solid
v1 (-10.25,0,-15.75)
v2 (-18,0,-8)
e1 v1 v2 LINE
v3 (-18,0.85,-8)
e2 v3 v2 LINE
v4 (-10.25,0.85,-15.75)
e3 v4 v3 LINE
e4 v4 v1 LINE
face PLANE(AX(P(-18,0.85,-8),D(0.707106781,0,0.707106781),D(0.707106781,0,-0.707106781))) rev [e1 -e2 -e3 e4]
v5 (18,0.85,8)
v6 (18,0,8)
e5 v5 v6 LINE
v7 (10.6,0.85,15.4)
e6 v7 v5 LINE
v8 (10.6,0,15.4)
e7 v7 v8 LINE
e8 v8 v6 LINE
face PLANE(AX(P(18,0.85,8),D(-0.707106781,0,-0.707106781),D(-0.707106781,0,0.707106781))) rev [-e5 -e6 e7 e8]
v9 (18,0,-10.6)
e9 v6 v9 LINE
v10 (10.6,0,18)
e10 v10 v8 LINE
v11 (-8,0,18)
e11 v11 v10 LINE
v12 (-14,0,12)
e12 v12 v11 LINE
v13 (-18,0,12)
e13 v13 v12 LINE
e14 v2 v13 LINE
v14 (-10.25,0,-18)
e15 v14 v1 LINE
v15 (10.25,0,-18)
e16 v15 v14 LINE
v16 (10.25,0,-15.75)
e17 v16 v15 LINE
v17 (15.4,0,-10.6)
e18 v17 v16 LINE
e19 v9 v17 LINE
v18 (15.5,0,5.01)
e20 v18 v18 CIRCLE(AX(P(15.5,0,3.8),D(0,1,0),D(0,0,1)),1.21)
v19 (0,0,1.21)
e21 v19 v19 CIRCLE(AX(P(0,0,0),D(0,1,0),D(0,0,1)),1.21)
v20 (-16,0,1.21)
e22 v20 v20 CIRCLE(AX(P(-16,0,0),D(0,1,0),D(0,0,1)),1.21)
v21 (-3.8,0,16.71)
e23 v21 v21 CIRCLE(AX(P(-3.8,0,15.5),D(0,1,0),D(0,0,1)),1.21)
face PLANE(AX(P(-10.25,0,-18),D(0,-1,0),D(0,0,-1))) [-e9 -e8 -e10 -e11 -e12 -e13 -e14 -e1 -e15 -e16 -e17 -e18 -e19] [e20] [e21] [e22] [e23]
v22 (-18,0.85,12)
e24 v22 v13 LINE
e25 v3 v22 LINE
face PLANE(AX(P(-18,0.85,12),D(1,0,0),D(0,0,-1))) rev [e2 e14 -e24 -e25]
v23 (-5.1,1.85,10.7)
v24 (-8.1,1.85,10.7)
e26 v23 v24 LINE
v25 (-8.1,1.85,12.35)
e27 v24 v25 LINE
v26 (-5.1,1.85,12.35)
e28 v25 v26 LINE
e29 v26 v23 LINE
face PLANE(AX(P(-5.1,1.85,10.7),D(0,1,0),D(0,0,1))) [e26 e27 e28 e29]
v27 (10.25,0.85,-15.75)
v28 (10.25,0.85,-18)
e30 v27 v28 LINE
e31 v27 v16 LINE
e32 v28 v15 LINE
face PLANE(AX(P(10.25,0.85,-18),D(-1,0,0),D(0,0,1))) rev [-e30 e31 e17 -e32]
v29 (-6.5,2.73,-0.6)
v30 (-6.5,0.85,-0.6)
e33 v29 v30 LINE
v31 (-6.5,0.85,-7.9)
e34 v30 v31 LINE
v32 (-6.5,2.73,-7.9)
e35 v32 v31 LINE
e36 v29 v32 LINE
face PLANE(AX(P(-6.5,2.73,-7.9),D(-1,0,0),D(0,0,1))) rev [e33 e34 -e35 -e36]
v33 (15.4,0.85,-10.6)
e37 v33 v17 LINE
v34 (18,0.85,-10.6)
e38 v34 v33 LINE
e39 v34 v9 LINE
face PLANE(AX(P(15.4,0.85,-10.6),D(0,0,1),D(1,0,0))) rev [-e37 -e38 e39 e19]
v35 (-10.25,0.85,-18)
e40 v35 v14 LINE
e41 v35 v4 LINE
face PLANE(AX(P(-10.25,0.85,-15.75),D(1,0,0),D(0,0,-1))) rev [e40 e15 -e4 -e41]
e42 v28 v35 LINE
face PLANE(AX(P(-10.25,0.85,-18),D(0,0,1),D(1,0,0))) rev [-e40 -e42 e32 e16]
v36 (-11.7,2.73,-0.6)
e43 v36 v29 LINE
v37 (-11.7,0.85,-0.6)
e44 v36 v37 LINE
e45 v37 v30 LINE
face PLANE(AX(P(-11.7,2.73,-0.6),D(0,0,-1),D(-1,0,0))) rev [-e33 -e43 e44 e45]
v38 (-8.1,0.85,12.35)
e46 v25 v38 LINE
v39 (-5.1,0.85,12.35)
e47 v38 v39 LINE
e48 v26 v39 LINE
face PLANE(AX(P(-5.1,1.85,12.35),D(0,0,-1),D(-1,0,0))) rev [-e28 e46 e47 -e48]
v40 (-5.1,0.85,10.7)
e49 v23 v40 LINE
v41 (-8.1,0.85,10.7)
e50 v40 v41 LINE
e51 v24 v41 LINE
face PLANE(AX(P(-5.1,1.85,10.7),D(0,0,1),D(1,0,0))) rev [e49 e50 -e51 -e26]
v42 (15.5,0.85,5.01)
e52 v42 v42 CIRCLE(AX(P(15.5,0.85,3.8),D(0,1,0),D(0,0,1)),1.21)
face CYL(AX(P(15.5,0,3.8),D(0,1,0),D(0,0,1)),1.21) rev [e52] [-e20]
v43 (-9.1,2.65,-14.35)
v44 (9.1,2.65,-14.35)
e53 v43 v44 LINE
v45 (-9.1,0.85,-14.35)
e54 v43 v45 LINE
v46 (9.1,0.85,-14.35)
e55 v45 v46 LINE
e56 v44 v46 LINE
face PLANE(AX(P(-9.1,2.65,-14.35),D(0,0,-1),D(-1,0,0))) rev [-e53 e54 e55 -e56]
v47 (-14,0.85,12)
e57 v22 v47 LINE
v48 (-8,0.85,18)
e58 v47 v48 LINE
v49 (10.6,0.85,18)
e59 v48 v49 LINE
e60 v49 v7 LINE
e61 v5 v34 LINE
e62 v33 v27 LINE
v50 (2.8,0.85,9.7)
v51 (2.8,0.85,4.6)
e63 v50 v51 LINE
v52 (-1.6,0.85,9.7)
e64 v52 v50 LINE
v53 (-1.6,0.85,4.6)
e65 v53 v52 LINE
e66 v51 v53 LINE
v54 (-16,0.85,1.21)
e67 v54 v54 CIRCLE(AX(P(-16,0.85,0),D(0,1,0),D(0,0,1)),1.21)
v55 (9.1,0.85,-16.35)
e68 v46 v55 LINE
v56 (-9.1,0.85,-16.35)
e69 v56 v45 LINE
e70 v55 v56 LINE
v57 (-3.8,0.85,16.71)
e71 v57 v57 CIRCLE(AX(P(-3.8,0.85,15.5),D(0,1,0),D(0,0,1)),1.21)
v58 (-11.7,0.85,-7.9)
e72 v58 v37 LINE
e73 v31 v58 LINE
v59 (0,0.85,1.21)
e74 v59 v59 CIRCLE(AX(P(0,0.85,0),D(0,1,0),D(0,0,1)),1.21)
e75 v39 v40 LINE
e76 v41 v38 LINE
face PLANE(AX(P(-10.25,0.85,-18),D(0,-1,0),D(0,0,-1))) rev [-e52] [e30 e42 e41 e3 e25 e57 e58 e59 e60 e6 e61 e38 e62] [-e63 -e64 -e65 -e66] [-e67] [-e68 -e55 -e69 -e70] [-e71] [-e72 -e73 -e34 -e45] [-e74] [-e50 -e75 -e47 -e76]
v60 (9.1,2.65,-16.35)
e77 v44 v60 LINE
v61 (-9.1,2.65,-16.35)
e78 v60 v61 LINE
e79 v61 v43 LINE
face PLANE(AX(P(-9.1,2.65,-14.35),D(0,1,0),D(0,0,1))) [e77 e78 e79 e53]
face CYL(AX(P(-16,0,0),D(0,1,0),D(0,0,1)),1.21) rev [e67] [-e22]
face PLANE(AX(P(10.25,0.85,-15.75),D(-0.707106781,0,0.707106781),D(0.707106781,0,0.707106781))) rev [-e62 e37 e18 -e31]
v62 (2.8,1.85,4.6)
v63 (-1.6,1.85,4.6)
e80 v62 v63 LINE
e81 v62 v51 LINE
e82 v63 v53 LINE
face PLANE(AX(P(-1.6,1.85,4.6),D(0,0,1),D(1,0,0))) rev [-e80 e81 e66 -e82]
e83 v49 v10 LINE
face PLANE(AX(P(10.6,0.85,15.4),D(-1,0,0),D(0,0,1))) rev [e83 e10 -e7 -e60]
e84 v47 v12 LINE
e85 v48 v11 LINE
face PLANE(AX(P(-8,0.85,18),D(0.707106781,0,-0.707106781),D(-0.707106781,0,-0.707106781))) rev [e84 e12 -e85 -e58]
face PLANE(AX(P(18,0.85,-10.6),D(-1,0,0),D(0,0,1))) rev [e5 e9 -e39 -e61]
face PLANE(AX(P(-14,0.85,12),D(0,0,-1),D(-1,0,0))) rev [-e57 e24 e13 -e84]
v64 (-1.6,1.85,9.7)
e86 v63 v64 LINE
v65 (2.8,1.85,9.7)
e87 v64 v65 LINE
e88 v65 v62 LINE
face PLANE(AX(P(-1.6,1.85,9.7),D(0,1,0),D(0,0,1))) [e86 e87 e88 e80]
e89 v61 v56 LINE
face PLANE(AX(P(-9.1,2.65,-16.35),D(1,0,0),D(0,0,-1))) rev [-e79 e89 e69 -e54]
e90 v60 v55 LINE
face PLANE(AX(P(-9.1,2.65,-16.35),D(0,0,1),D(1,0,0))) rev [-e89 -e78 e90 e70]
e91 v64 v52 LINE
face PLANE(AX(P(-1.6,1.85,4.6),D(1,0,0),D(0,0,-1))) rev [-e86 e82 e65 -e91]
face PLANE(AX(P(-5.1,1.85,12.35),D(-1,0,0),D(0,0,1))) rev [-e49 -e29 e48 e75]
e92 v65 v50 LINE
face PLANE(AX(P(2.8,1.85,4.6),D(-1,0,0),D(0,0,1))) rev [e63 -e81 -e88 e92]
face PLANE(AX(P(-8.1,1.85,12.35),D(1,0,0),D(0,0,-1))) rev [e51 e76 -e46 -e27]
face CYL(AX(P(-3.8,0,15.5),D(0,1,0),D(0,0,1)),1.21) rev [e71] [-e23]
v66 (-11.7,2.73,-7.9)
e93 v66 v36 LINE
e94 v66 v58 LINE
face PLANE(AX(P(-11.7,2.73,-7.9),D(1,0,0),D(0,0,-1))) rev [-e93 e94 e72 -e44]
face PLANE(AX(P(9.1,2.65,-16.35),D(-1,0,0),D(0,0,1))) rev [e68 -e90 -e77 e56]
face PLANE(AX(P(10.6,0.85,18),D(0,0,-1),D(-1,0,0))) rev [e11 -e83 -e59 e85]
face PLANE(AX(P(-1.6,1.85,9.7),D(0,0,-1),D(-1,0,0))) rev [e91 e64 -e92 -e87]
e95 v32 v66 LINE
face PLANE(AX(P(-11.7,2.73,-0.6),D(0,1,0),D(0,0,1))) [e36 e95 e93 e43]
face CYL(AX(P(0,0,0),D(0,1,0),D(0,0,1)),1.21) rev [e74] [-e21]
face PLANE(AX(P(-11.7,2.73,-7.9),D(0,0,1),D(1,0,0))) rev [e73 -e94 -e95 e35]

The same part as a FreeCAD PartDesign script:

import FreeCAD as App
import Part
import Sketcher
Q = App.Units.Quantity

doc = App.newDocument("Part")
body = doc.addObject("PartDesign::Body", "Body")

# Sketch on XZ plane
sketch1 = body.newObject("Sketcher::SketchObject", "Sketch")
sketch1.AttachmentSupport = (doc.getObject("XZ_Plane"), [""])
sketch1.MapMode = "FlatFace"
sketch1.addGeometry([
    Part.LineSegment(App.Vector(10.2, -18, 0), App.Vector(-10.2, -18, 0)),  # 0
    Part.LineSegment(App.Vector(-10.2, -18, 0), App.Vector(-10.2, -15.8, 0)),  # 1
    Part.LineSegment(App.Vector(-10.2, -15.8, 0), App.Vector(-18, -8, 0)),  # 2
    Part.LineSegment(App.Vector(-18, -8, 0), App.Vector(-18, 12, 0)),  # 3
    Part.LineSegment(App.Vector(-18, 12, 0), App.Vector(-14, 12, 0)),  # 4
    Part.LineSegment(App.Vector(-14, 12, 0), App.Vector(-8, 18, 0)),  # 5
    Part.LineSegment(App.Vector(-8, 18, 0), App.Vector(10.6, 18, 0)),  # 6
    Part.LineSegment(App.Vector(10.6, 18, 0), App.Vector(10.6, 15.4, 0)),  # 7
    Part.LineSegment(App.Vector(10.6, 15.4, 0), App.Vector(18, 8, 0)),  # 8
    Part.LineSegment(App.Vector(18, 8, 0), App.Vector(18, -10.6, 0)),  # 9
    Part.LineSegment(App.Vector(18, -10.6, 0), App.Vector(15.4, -10.6, 0)),  # 10
    Part.LineSegment(App.Vector(15.4, -10.6, 0), App.Vector(10.2, -15.8, 0)),  # 11
    Part.LineSegment(App.Vector(10.2, -15.8, 0), App.Vector(10.2, -18, 0)),  # 12
], False)
sketch1.addConstraint([
    Sketcher.Constraint("Coincident", 0, 2, 1, 1),
    Sketcher.Constraint("Coincident", 1, 2, 2, 1),
    Sketcher.Constraint("Coincident", 2, 2, 3, 1),
    Sketcher.Constraint("Coincident", 3, 2, 4, 1),
    Sketcher.Constraint("Coincident", 4, 2, 5, 1),
    Sketcher.Constraint("Coincident", 5, 2, 6, 1),
    Sketcher.Constraint("Coincident", 6, 2, 7, 1),
    Sketcher.Constraint("Coincident", 7, 2, 8, 1),
    Sketcher.Constraint("Coincident", 8, 2, 9, 1),
    Sketcher.Constraint("Coincident", 9, 2, 10, 1),
    Sketcher.Constraint("Coincident", 10, 2, 11, 1),
    Sketcher.Constraint("Coincident", 11, 2, 12, 1),
    Sketcher.Constraint("Coincident", 12, 2, 0, 1),
    Sketcher.Constraint("Horizontal", 0),
    Sketcher.Constraint("Vertical", 1),
    Sketcher.Constraint("Vertical", 3),
    Sketcher.Constraint("Horizontal", 4),
    Sketcher.Constraint("Horizontal", 6),
    Sketcher.Constraint("Vertical", 7),
    Sketcher.Constraint("Vertical", 9),
    Sketcher.Constraint("Horizontal", 10),
    Sketcher.Constraint("Vertical", 12),
    Sketcher.Constraint("Symmetric", 2, 2, 8, 2, -1, 1),
    Sketcher.Constraint("Symmetric", 1, 2, 11, 2, -2),
    Sketcher.Constraint("Perpendicular", 2, 5),
    Sketcher.Constraint("Perpendicular", 5, 8),
    Sketcher.Constraint("Perpendicular", 8, 11),
    Sketcher.Constraint("Equal", 10, 7),
    Sketcher.Constraint("Equal", 6, 9),
    Sketcher.Constraint("DistanceX", 4, 1, 4, 2, 4.0),
    Sketcher.Constraint("DistanceY", 3, 1, 3, 2, 20.0),
    Sketcher.Constraint("Angle", 2, Q("135 deg")),
    Sketcher.Constraint("DistanceX", 0, 2, 0, 1, 20.5),
    Sketcher.Constraint("DistanceX", 6, 1, 6, 2, 18.6),
    Sketcher.Constraint("DistanceX", 10, 2, 10, 1, 2.6),
    Sketcher.Constraint("DistanceY", 0, 2, -1, 1, 18.0),
    Sketcher.Constraint("DistanceX", 2, 2, -1, 1, 18.0),
])
pad1 = body.newObject("PartDesign::Pad", "Pad")
pad1.Profile = sketch1
pad1.Length = 0.85
pad1.Reversed = True

# Sketch on XZ plane
sketch2 = body.newObject("Sketcher::SketchObject", "Sketch001")
sketch2.AttachmentSupport = (doc.getObject("XZ_Plane"), [""])
sketch2.MapMode = "FlatFace"
sketch2.AttachmentOffset = App.Placement(App.Vector(0, 0, -0.85), App.Rotation())
sketch2.addGeometry([
    Part.LineSegment(App.Vector(-9.1, -16.4, 0), App.Vector(-9.1, -14.3, 0)),
    Part.LineSegment(App.Vector(-9.1, -14.3, 0), App.Vector(9.1, -14.3, 0)),
    Part.LineSegment(App.Vector(9.1, -14.3, 0), App.Vector(9.1, -16.4, 0)),
    Part.LineSegment(App.Vector(9.1, -16.4, 0), App.Vector(-9.1, -16.4, 0)),
], False)
sketch2.addConstraint([
    Sketcher.Constraint("Coincident", 0, 2, 1, 1),
    Sketcher.Constraint("Coincident", 1, 2, 2, 1),
    Sketcher.Constraint("Coincident", 2, 2, 3, 1),
    Sketcher.Constraint("Coincident", 3, 2, 0, 1),
    Sketcher.Constraint("Vertical", 0),
    Sketcher.Constraint("Horizontal", 1),
    Sketcher.Constraint("Vertical", 2),
    Sketcher.Constraint("Horizontal", 3),
    Sketcher.Constraint("DistanceY", 0, 1, 0, 2, 2.0),
    Sketcher.Constraint("DistanceX", 1, 1, 1, 2, 18.2),
    Sketcher.Constraint("DistanceX", 0, 2, -1, 1, 9.1),
    Sketcher.Constraint("DistanceY", 0, 2, -1, 1, 14.35),
])
pad2 = body.newObject("PartDesign::Pad", "Pad001")
pad2.Profile = sketch2
pad2.Length = 1.8
pad2.Reversed = True

# Sketch on XZ plane
sketch3 = body.newObject("Sketcher::SketchObject", "Sketch002")
sketch3.AttachmentSupport = (doc.getObject("XZ_Plane"), [""])
sketch3.MapMode = "FlatFace"
sketch3.AttachmentOffset = App.Placement(App.Vector(0, 0, -0.85), App.Rotation())
sketch3.addGeometry([
    Part.LineSegment(App.Vector(-12, -8, 0), App.Vector(-12, -1, 0)),
    Part.LineSegment(App.Vector(-12, -1, 0), App.Vector(-6, -1, 0)),
    Part.LineSegment(App.Vector(-6, -1, 0), App.Vector(-6, -8, 0)),
    Part.LineSegment(App.Vector(-6, -8, 0), App.Vector(-12, -8, 0)),
], False)
sketch3.addConstraint([
    Sketcher.Constraint("Coincident", 0, 2, 1, 1),
    Sketcher.Constraint("Coincident", 1, 2, 2, 1),
    Sketcher.Constraint("Coincident", 2, 2, 3, 1),
    Sketcher.Constraint("Coincident", 3, 2, 0, 1),
    Sketcher.Constraint("Vertical", 0),
    Sketcher.Constraint("Horizontal", 1),
    Sketcher.Constraint("Vertical", 2),
    Sketcher.Constraint("Horizontal", 3),
    Sketcher.Constraint("DistanceX", 1, 1, 1, 2, 5.2),
    Sketcher.Constraint("DistanceY", 0, 1, 0, 2, 7.3),
    Sketcher.Constraint("DistanceX", 0, 2, -1, 1, 11.7),
    Sketcher.Constraint("DistanceY", 0, 2, -1, 1, 0.6),
])
pad3 = body.newObject("PartDesign::Pad", "Pad002")
pad3.Profile = sketch3
pad3.Length = 1.88
pad3.Reversed = True

# Sketch on XZ plane
sketch4 = body.newObject("Sketcher::SketchObject", "Sketch003")
sketch4.AttachmentSupport = (doc.getObject("XZ_Plane"), [""])
sketch4.MapMode = "FlatFace"
sketch4.AttachmentOffset = App.Placement(App.Vector(0, 0, -0.85), App.Rotation())
sketch4.addGeometry([
    Part.LineSegment(App.Vector(-1.6, 4.6, 0), App.Vector(-1.6, 9.7, 0)),  # 0
    Part.LineSegment(App.Vector(-1.6, 9.7, 0), App.Vector(2.8, 9.7, 0)),  # 1
    Part.LineSegment(App.Vector(2.8, 9.7, 0), App.Vector(2.8, 4.6, 0)),  # 2
    Part.LineSegment(App.Vector(2.8, 4.6, 0), App.Vector(-1.6, 4.6, 0)),  # 3
    Part.LineSegment(App.Vector(-8.1, 10.7, 0), App.Vector(-8.1, 12.3, 0)),  # 4
    Part.LineSegment(App.Vector(-8.1, 12.3, 0), App.Vector(-5.1, 12.3, 0)),  # 5
    Part.LineSegment(App.Vector(-5.1, 12.3, 0), App.Vector(-5.1, 10.7, 0)),  # 6
    Part.LineSegment(App.Vector(-5.1, 10.7, 0), App.Vector(-8.1, 10.7, 0)),  # 7
], False)
sketch4.addConstraint([
    Sketcher.Constraint("Coincident", 0, 2, 1, 1),
    Sketcher.Constraint("Coincident", 1, 2, 2, 1),
    Sketcher.Constraint("Coincident", 2, 2, 3, 1),
    Sketcher.Constraint("Coincident", 3, 2, 0, 1),
    Sketcher.Constraint("Coincident", 4, 2, 5, 1),
    Sketcher.Constraint("Coincident", 5, 2, 6, 1),
    Sketcher.Constraint("Coincident", 6, 2, 7, 1),
    Sketcher.Constraint("Coincident", 7, 2, 4, 1),
    Sketcher.Constraint("Vertical", 0),
    Sketcher.Constraint("Horizontal", 1),
    Sketcher.Constraint("Vertical", 2),
    Sketcher.Constraint("Horizontal", 3),
    Sketcher.Constraint("Vertical", 4),
    Sketcher.Constraint("Horizontal", 5),
    Sketcher.Constraint("Vertical", 6),
    Sketcher.Constraint("Horizontal", 7),
    Sketcher.Constraint("DistanceX", 5, 1, 5, 2, 3.0),
    Sketcher.Constraint("DistanceX", 1, 1, 1, 2, 4.4),
    Sketcher.Constraint("DistanceY", 0, 1, 0, 2, 5.1),
    Sketcher.Constraint("DistanceY", 0, 2, 6, 2, 1.0),
    Sketcher.Constraint("DistanceY", 4, 1, 4, 2, 1.65),
    Sketcher.Constraint("DistanceX", 0, 2, -1, 1, 1.6),
    Sketcher.Constraint("DistanceY", -1, 1, 0, 2, 9.7),
    Sketcher.Constraint("DistanceX", 4, 2, -1, 1, 8.1),
])
pad4 = body.newObject("PartDesign::Pad", "Pad003")
pad4.Profile = sketch4
pad4.Length = 1
pad4.Reversed = True

# Sketch on XZ plane
sketch5 = body.newObject("Sketcher::SketchObject", "Sketch004")
sketch5.AttachmentSupport = (doc.getObject("XZ_Plane"), [""])
sketch5.MapMode = "FlatFace"
sketch5.AttachmentOffset = App.Placement(App.Vector(0, 0, -0.85), App.Rotation())
sketch5.addGeometry([
    Part.Circle(App.Vector(0, 0, 0), App.Vector(0, 0, 1), 1.2),
    Part.Circle(App.Vector(-16, 0, 0), App.Vector(0, 0, 1), 1.2),
    Part.Circle(App.Vector(-3.8, 15.5, 0), App.Vector(0, 0, 1), 1.2),
    Part.Circle(App.Vector(15.5, 3.8, 0), App.Vector(0, 0, 1), 1.2),
], False)
sketch5.addConstraint([
    Sketcher.Constraint("Coincident", 0, 3, -1, 1),
    Sketcher.Constraint("Equal", 0, 1),
    Sketcher.Constraint("Equal", 1, 2),
    Sketcher.Constraint("Equal", 2, 3),
    Sketcher.Constraint("PointOnObject", 1, 3, -1),
    Sketcher.Constraint("Diameter", 0, 2.42),
    Sketcher.Constraint("DistanceX", 1, 3, -1, 1, 16.0),
    Sketcher.Constraint("DistanceX", 2, 3, -1, 1, 3.8),
    Sketcher.Constraint("DistanceY", -1, 1, 2, 3, 15.5),
    Sketcher.Constraint("DistanceX", -1, 1, 3, 3, 15.5),
    Sketcher.Constraint("DistanceY", -1, 1, 3, 3, 3.8),
])
pocket1 = body.newObject("PartDesign::Pocket", "Pocket")
pocket1.Profile = sketch5
pocket1.Type = "ThroughAll"
pocket1.Reversed = True

doc.recompute()
